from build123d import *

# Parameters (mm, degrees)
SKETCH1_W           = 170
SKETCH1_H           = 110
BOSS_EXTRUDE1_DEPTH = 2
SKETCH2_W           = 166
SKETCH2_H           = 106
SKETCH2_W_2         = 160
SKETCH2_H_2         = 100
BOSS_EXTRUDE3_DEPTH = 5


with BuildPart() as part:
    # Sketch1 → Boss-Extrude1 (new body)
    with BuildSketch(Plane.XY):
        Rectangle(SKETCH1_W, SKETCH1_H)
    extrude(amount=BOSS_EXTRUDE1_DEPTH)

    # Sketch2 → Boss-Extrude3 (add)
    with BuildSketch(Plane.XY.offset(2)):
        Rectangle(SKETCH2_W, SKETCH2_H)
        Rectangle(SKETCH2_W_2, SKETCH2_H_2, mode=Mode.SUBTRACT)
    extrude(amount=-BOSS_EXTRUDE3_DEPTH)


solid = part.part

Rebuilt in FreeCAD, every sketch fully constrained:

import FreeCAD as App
import Part
import Sketcher
Q = App.Units.Quantity


def add_polygon(sketch, points):
    """Adds a closed chain of lines whose ends are joined by coincident constraints."""
    first, n = sketch.GeometryCount, len(points)
    for a, b in zip(points, points[1:] + points[:1]):
        sketch.addGeometry(Part.LineSegment(App.Vector(*a, 0), App.Vector(*b, 0)), False)
    for i in range(n):
        sketch.addConstraint(Sketcher.Constraint("Coincident", first + i, 2, first + (i + 1) % n, 1))

doc = App.newDocument("Part")
params = doc.addObject("Spreadsheet::Sheet", "Params")
for row, (alias, value) in enumerate([
    ("sketch1_width", "170 mm"),
    ("sketch1_height", "110 mm"),
    ("pad1_length", "2 mm"),
    ("sketch2_width", "166 mm"),
    ("sketch2_width2", "160 mm"),
    ("sketch2_height", "106 mm"),
    ("sketch2_height2", "100 mm"),
    ("pad2_length", "5 mm"),
], start=1):
    params.set(f"A{row}", alias)
    params.set(f"B{row}", "=" + value)
    params.setAlias(f"B{row}", alias)

body = doc.addObject("PartDesign::Body", "Body")

sketch1 = doc.addObject("Sketcher::SketchObject", "Sketch")
body.addObject(sketch1)
sketch1.AttachmentSupport = (doc.XY_Plane, [""])
sketch1.MapMode = "FlatFace"
add_polygon(sketch1, [(-85, 55), (-85, -55), (85, -55), (85, 55)])
sketch1.addConstraint([
    Sketcher.Constraint("Vertical", 0),
    Sketcher.Constraint("Horizontal", 1),
    Sketcher.Constraint("Vertical", 2),
    Sketcher.Constraint("Horizontal", 3),
    Sketcher.Constraint("Symmetric", 0, 2, 2, 2, -1, 1),
    Sketcher.Constraint("DistanceX", 1, 1, 1, 2, Q("170 mm")),
    Sketcher.Constraint("DistanceY", 0, 2, 0, 1, Q("110 mm")),
])
sketch1.setExpression("Constraints[9]", "Params.sketch1_width")
sketch1.setExpression("Constraints[10]", "Params.sketch1_height")
pad1 = doc.addObject("PartDesign::Pad", "Pad")
body.addObject(pad1)
pad1.Profile = sketch1
pad1.setExpression("Length", "Params.pad1_length")

sketch2 = doc.addObject("Sketcher::SketchObject", "Sketch001")
body.addObject(sketch2)
sketch2.AttachmentSupport = (doc.XY_Plane, [""])
sketch2.MapMode = "FlatFace"
sketch2.AttachmentOffset = App.Placement(App.Vector(0, 0, 2), App.Rotation())
add_polygon(sketch2, [(-83, 53), (-83, -53), (83, -53), (83, 53)])
add_polygon(sketch2, [(80, -50), (-80, -50), (-80, 50), (80, 50)])
sketch2.addConstraint([
    Sketcher.Constraint("Vertical", 0),
    Sketcher.Constraint("Horizontal", 1),
    Sketcher.Constraint("Vertical", 2),
    Sketcher.Constraint("Horizontal", 3),
    Sketcher.Constraint("Horizontal", 4),
    Sketcher.Constraint("Vertical", 5),
    Sketcher.Constraint("Horizontal", 6),
    Sketcher.Constraint("Vertical", 7),
    Sketcher.Constraint("Symmetric", 0, 2, 2, 2, -1, 1),
    Sketcher.Constraint("Symmetric", 4, 2, 6, 2, -1, 1),
    Sketcher.Constraint("DistanceX", 1, 1, 1, 2, Q("166 mm")),
    Sketcher.Constraint("DistanceX", 4, 2, 4, 1, Q("160 mm")),
    Sketcher.Constraint("DistanceY", 0, 2, 0, 1, Q("106 mm")),
    Sketcher.Constraint("DistanceY", 5, 1, 5, 2, Q("100 mm")),
])
sketch2.setExpression("Constraints[18]", "Params.sketch2_width")
sketch2.setExpression("Constraints[19]", "Params.sketch2_width2")
sketch2.setExpression("Constraints[20]", "Params.sketch2_height")
sketch2.setExpression("Constraints[21]", "Params.sketch2_height2")
pad2 = doc.addObject("PartDesign::Pad", "Pad001")
body.addObject(pad2)
pad2.Profile = sketch2
pad2.setExpression("Length", "Params.pad2_length")
pad2.Reversed = True

doc.recompute()
